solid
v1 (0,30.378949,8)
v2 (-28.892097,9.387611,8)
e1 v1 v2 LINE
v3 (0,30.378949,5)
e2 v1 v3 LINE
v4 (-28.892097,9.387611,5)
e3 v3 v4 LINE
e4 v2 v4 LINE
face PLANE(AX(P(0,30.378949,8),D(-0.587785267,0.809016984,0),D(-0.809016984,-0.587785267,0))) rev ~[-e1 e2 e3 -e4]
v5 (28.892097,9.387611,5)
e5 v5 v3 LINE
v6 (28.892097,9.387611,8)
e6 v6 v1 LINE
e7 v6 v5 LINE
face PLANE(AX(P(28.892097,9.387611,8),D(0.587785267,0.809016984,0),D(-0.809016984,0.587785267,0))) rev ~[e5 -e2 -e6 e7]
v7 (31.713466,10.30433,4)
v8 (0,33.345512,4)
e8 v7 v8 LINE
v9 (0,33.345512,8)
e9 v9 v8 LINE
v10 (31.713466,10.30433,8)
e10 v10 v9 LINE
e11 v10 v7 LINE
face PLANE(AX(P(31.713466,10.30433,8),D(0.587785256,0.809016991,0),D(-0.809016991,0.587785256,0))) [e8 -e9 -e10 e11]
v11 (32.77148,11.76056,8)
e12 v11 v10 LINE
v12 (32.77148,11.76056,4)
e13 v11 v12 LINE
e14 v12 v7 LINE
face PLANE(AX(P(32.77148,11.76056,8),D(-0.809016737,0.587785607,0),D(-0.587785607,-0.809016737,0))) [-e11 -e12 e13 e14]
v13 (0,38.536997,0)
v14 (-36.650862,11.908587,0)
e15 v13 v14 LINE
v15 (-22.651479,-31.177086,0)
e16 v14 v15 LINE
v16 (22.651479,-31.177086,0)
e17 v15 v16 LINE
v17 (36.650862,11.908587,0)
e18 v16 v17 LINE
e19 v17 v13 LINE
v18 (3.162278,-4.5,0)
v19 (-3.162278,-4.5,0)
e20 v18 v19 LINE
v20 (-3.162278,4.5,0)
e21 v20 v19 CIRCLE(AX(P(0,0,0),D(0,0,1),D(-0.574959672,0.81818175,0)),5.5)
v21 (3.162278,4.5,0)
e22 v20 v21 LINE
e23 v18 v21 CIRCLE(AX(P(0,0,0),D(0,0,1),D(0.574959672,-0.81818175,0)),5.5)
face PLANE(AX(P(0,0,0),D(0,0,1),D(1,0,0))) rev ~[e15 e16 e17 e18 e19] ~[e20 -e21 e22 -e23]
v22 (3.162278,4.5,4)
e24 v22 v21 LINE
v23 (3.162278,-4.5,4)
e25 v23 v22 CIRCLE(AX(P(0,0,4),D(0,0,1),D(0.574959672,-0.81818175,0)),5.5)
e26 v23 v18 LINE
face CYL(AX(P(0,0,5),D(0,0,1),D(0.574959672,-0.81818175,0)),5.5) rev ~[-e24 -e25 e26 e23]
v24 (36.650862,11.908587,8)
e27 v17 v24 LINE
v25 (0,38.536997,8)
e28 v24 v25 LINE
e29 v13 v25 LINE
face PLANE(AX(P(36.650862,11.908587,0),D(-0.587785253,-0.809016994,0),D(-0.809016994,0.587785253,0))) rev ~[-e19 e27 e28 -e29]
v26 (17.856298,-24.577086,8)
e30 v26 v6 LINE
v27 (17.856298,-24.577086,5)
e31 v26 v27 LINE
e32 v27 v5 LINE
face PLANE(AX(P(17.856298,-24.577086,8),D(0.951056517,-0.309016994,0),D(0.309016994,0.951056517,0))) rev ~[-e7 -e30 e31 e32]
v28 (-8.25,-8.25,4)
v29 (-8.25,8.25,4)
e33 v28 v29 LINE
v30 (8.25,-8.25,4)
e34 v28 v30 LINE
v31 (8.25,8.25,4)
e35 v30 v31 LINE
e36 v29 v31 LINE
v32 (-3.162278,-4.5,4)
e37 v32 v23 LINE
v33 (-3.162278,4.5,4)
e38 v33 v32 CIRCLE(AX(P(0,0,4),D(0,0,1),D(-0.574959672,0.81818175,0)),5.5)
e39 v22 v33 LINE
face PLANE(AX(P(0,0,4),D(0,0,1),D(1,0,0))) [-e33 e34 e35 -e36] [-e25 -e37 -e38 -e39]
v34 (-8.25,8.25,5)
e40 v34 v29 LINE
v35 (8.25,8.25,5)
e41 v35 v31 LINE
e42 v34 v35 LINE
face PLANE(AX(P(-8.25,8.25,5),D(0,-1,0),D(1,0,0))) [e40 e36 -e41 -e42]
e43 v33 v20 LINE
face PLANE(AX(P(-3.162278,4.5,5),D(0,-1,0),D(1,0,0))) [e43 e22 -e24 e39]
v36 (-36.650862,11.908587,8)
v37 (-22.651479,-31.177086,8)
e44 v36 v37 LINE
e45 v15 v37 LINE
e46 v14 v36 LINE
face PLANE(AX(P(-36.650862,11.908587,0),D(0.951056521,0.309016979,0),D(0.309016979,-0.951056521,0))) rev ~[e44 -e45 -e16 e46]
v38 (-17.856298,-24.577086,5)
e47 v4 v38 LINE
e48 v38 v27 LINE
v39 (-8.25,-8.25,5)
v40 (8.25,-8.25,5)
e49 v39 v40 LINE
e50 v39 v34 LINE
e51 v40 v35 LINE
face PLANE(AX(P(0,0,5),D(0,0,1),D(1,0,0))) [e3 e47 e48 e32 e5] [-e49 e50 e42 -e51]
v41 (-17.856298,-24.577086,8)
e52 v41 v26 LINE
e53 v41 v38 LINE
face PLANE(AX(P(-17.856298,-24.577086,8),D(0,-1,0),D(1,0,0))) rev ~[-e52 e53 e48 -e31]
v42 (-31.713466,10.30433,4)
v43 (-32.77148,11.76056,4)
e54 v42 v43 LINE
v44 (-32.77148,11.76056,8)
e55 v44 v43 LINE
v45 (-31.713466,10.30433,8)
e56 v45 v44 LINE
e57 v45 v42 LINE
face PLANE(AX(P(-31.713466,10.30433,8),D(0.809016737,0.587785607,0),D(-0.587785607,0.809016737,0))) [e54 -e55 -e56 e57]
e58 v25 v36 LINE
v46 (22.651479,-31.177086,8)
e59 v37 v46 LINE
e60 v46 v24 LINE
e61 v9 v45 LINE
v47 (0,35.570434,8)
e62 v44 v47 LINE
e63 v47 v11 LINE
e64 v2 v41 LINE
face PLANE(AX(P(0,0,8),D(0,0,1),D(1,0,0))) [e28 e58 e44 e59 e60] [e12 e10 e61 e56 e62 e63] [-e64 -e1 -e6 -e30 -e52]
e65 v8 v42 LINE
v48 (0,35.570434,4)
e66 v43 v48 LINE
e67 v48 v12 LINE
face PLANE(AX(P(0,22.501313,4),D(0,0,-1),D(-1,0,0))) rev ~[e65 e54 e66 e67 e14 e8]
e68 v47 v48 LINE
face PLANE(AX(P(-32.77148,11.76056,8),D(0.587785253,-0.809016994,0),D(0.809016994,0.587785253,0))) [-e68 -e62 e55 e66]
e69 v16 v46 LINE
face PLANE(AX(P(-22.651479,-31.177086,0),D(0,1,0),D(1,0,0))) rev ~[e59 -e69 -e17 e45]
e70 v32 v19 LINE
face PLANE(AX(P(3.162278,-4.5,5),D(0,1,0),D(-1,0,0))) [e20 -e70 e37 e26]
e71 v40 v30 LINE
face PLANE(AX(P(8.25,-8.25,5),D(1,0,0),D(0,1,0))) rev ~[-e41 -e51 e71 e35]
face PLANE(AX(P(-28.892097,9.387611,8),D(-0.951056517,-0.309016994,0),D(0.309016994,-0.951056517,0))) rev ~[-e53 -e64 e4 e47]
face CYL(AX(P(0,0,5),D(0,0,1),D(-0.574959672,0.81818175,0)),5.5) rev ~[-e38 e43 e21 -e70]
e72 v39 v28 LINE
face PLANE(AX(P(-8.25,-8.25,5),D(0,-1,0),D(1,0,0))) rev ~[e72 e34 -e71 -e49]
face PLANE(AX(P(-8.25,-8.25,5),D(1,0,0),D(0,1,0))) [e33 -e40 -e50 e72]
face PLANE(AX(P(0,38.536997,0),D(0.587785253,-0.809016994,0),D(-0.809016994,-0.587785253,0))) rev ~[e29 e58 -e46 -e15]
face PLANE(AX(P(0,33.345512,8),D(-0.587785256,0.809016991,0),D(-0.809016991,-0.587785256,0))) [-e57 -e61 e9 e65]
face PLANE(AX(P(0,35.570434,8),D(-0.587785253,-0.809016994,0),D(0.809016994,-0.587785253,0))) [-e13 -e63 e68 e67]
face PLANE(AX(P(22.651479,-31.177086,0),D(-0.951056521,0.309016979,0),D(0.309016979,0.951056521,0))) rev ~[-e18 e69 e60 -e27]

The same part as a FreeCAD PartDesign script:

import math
import FreeCAD as App
import Part
import Sketcher
from FreeCAD import Vector
Q = App.Units.Quantity


def add_polygon(sketch, points):
    """Adds a closed chain of lines whose ends are joined by coincident constraints."""
    first, n = sketch.GeometryCount, len(points)
    for a, b in zip(points, points[1:] + points[:1]):
        sketch.addGeometry(Part.LineSegment(App.Vector(*a, 0), App.Vector(*b, 0)), False)
    for i in range(n):
        sketch.addConstraint(Sketcher.Constraint("Coincident", first + i, 2, first + (i + 1) % n, 1))

doc = App.newDocument("Part")
body = doc.addObject("PartDesign::Body", "Body")

# Sketch on XY plane
sketch1 = doc.addObject("Sketcher::SketchObject", "Sketch")
body.addObject(sketch1)
sketch1.AttachmentSupport = (doc.XY_Plane, [""])
sketch1.MapMode = "FlatFace"
add_polygon(sketch1, [(0, 39), (-37, 12), (-23, -31), (23, -31), (37, 12)])  # lines 0-4
sketch1.addConstraint([
    Sketcher.Constraint("Horizontal", 2),
    Sketcher.Constraint("Symmetric", 0, 2, 3, 2, -2),
    Sketcher.Constraint("PointOnObject", 4, 2, -2),
    Sketcher.Constraint("Equal", 0, 1),
    Sketcher.Constraint("Equal", 1, 3),
    Sketcher.Constraint("Angle", 0, Q("-144 deg")),
    Sketcher.Constraint("Angle", 1, Q("-72.000001 deg")),
    Sketcher.Constraint("DistanceX", 2, 1, 2, 2, 45.302958),
    Sketcher.Constraint("DistanceY", -1, 1, 0, 2, 11.908587),
])
pad1 = doc.addObject("PartDesign::Pad", "Pad")
body.addObject(pad1)
pad1.Profile = sketch1
pad1.Length = 8

# Sketch on XY plane
sketch2 = doc.addObject("Sketcher::SketchObject", "Sketch001")
body.addObject(sketch2)
sketch2.AttachmentSupport = (doc.XY_Plane, [""])
sketch2.MapMode = "FlatFace"
sketch2.AttachmentOffset = App.Placement(Vector(0, 0, 8), App.Rotation())
add_polygon(sketch2, [(0, 35.6), (-32.8, 11.8), (-31.7, 10.3), (0, 33.3), (31.7, 10.3), (32.8, 11.8)])  # lines 0-5
sketch2.addConstraint([
    Sketcher.Constraint("Symmetric", 1, 2, 3, 2, -2),
    Sketcher.Constraint("Symmetric", 0, 2, 4, 2, -2),
    Sketcher.Constraint("PointOnObject", 2, 2, -2),
    Sketcher.Constraint("PointOnObject", 5, 2, -2),
    Sketcher.Constraint("Perpendicular", 0, 1),
    Sketcher.Constraint("Perpendicular", 1, 2),
    Sketcher.Constraint("Angle", 0, Q("-144 deg")),
    Sketcher.Constraint("Distance", 1, 1.8),
    Sketcher.Constraint("Distance", 2, 39.2),
    Sketcher.Constraint("DistanceY", -1, 1, 0, 2, 11.76056),
])
pocket1 = doc.addObject("PartDesign::Pocket", "Pocket")
body.addObject(pocket1)
pocket1.Profile = sketch2
pocket1.Length = 4

# Sketch on XY plane
sketch3 = doc.addObject("Sketcher::SketchObject", "Sketch002")
body.addObject(sketch3)
sketch3.AttachmentSupport = (doc.XY_Plane, [""])
sketch3.MapMode = "FlatFace"
sketch3.AttachmentOffset = App.Placement(Vector(0, 0, 8), App.Rotation())
add_polygon(sketch3, [(0, 30), (-29, 9), (-18, -25), (18, -25), (29, 9)])  # lines 0-4
sketch3.addConstraint([
    Sketcher.Constraint("Horizontal", 2),
    Sketcher.Constraint("Symmetric", 0, 2, 3, 2, -2),
    Sketcher.Constraint("PointOnObject", 4, 2, -2),
    Sketcher.Constraint("Equal", 0, 1),
    Sketcher.Constraint("Equal", 1, 3),
    Sketcher.Constraint("Angle", 0, Q("-143.999999 deg")),
    Sketcher.Constraint("Angle", 1, Q("-72 deg")),
    Sketcher.Constraint("DistanceX", 0, 2, 1, 2, 11.035799),
    Sketcher.Constraint("DistanceY", -1, 1, 0, 2, 9.387611),
])
pocket2 = doc.addObject("PartDesign::Pocket", "Pocket001")
body.addObject(pocket2)
pocket2.Profile = sketch3
pocket2.Length = 3

# Sketch on XY plane
sketch4 = doc.addObject("Sketcher::SketchObject", "Sketch003")
body.addObject(sketch4)
sketch4.AttachmentSupport = (doc.XY_Plane, [""])
sketch4.MapMode = "FlatFace"
sketch4.AttachmentOffset = App.Placement(Vector(0, 0, 5), App.Rotation())
sketch4.addGeometry([
    Part.ArcOfCircle(Part.Circle(Vector(0, 0, 0), Vector(0, 0, 1), 6), math.radians(125), math.radians(235)),
    Part.LineSegment(Vector(-3, -4, 0), Vector(3, -4, 0)),
    Part.ArcOfCircle(Part.Circle(Vector(0, 0, 0), Vector(0, 0, 1), 6), math.radians(-55), math.radians(55)),
    Part.LineSegment(Vector(3, 4, 0), Vector(-3, 4, 0)),
], False)
sketch4.addConstraint([
    Sketcher.Constraint("Coincident", 0, 2, 1, 1),
    Sketcher.Constraint("Coincident", 1, 2, 2, 1),
    Sketcher.Constraint("Coincident", 2, 2, 3, 1),
    Sketcher.Constraint("Coincident", 3, 2, 0, 1),
    Sketcher.Constraint("Horizontal", 1),
    Sketcher.Constraint("Horizontal", 3),
    Sketcher.Constraint("Coincident", 0, 3, -1, 1),
    Sketcher.Constraint("Coincident", 2, 3, -1, 1),
    Sketcher.Constraint("Equal", 0, 2),
    Sketcher.Constraint("Vertical", 1, 2, 2, 2),
    Sketcher.Constraint("Radius", 0, 5.5),
    Sketcher.Constraint("DistanceY", 1, 2, 2, 2, 9.0),
])
pocket3 = doc.addObject("PartDesign::Pocket", "Pocket002")
body.addObject(pocket3)
pocket3.Profile = sketch4
pocket3.Length = 5

# Sketch on XY plane
sketch5 = doc.addObject("Sketcher::SketchObject", "Sketch004")
body.addObject(sketch5)
sketch5.AttachmentSupport = (doc.XY_Plane, [""])
sketch5.MapMode = "FlatFace"
sketch5.AttachmentOffset = App.Placement(Vector(0, 0, 5), App.Rotation())
add_polygon(sketch5, [(-8, 8), (-8, -8), (8, -8), (8, 8)])  # lines 0-3
sketch5.addConstraint([
    Sketcher.Constraint("Vertical", 0),
    Sketcher.Constraint("Horizontal", 1),
    Sketcher.Constraint("Vertical", 2),
    Sketcher.Constraint("Horizontal", 3),
    Sketcher.Constraint("Symmetric", 0, 2, 2, 2, -1, 1),
    Sketcher.Constraint("Equal", 3, 0),
    Sketcher.Constraint("DistanceX", 1, 1, 1, 2, 16.5),
])
pocket4 = doc.addObject("PartDesign::Pocket", "Pocket003")
body.addObject(pocket4)
pocket4.Profile = sketch5
pocket4.Length = 1

doc.recompute()
